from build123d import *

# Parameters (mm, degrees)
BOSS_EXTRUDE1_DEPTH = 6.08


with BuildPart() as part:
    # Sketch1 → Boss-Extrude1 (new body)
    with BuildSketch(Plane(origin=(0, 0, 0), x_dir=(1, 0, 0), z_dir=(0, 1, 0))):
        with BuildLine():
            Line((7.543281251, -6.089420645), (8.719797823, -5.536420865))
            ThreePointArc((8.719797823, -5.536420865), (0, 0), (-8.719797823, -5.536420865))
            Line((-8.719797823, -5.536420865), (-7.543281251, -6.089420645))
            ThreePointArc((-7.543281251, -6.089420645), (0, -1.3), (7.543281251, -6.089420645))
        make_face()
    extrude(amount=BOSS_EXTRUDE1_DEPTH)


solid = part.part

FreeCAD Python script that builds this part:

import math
import FreeCAD as App
import Part
import Sketcher

V = App.Vector

doc = App.newDocument("Part")
body = doc.addObject("PartDesign::Body", "Body")

sketch1 = body.newObject("Sketcher::SketchObject", "Sketch")
sketch1.AttachmentSupport = (doc.getObject("XZ_Plane"), [""])
sketch1.MapMode = "FlatFace"
sketch1.addGeometry(Part.LineSegment(V(7.5, 6.1, 0), V(8.7, 5.5, 0)), False)
sketch1.addGeometry(Part.ArcOfCircle(Part.Circle(V(0, 9.6, 0), V(0, 0, 1), 9.6), math.radians(-155), math.radians(-25)), False)
sketch1.addGeometry(Part.LineSegment(V(-8.7, 5.5, 0), V(-7.5, 6.1, 0)), False)
sketch1.addGeometry(Part.ArcOfCircle(Part.Circle(V(0, 9.6, 0), V(0, 0, 1), 8.3), math.radians(-155), math.radians(-25)), False)
sketch1.addConstraint(Sketcher.Constraint("Coincident", 0, 2, 1, 2))
sketch1.addConstraint(Sketcher.Constraint("Coincident", 1, 1, 2, 1))
sketch1.addConstraint(Sketcher.Constraint("Coincident", 2, 2, 3, 1))
sketch1.addConstraint(Sketcher.Constraint("Coincident", 3, 2, 0, 1))
sketch1.addConstraint(Sketcher.Constraint("Coincident", 3, 3, 1, 3))
sketch1.addConstraint(Sketcher.Constraint("Symmetric", 0, 2, 1, 1, -2))
sketch1.addConstraint(Sketcher.Constraint("Horizontal", 2, 2, 3, 2))
sketch1.addConstraint(Sketcher.Constraint("Radius", 1, 9.635))
sketch1.addConstraint(Sketcher.Constraint("Radius", 3, 8.335))
sketch1.addConstraint(Sketcher.Constraint("DistanceY", -1, 1, 1, 3, 9.635))
sketch1.addConstraint(Sketcher.Constraint("DistanceY", 1, 1, 2, 2, 0.553))
sketch1.addConstraint(Sketcher.Constraint("DistanceY", -1, 1, 0, 2, 5.536421))
pad1 = body.newObject("PartDesign::Pad", "Pad")
pad1.Profile = sketch1
pad1.Length = 6.08
pad1.Reversed = True

doc.recompute()
